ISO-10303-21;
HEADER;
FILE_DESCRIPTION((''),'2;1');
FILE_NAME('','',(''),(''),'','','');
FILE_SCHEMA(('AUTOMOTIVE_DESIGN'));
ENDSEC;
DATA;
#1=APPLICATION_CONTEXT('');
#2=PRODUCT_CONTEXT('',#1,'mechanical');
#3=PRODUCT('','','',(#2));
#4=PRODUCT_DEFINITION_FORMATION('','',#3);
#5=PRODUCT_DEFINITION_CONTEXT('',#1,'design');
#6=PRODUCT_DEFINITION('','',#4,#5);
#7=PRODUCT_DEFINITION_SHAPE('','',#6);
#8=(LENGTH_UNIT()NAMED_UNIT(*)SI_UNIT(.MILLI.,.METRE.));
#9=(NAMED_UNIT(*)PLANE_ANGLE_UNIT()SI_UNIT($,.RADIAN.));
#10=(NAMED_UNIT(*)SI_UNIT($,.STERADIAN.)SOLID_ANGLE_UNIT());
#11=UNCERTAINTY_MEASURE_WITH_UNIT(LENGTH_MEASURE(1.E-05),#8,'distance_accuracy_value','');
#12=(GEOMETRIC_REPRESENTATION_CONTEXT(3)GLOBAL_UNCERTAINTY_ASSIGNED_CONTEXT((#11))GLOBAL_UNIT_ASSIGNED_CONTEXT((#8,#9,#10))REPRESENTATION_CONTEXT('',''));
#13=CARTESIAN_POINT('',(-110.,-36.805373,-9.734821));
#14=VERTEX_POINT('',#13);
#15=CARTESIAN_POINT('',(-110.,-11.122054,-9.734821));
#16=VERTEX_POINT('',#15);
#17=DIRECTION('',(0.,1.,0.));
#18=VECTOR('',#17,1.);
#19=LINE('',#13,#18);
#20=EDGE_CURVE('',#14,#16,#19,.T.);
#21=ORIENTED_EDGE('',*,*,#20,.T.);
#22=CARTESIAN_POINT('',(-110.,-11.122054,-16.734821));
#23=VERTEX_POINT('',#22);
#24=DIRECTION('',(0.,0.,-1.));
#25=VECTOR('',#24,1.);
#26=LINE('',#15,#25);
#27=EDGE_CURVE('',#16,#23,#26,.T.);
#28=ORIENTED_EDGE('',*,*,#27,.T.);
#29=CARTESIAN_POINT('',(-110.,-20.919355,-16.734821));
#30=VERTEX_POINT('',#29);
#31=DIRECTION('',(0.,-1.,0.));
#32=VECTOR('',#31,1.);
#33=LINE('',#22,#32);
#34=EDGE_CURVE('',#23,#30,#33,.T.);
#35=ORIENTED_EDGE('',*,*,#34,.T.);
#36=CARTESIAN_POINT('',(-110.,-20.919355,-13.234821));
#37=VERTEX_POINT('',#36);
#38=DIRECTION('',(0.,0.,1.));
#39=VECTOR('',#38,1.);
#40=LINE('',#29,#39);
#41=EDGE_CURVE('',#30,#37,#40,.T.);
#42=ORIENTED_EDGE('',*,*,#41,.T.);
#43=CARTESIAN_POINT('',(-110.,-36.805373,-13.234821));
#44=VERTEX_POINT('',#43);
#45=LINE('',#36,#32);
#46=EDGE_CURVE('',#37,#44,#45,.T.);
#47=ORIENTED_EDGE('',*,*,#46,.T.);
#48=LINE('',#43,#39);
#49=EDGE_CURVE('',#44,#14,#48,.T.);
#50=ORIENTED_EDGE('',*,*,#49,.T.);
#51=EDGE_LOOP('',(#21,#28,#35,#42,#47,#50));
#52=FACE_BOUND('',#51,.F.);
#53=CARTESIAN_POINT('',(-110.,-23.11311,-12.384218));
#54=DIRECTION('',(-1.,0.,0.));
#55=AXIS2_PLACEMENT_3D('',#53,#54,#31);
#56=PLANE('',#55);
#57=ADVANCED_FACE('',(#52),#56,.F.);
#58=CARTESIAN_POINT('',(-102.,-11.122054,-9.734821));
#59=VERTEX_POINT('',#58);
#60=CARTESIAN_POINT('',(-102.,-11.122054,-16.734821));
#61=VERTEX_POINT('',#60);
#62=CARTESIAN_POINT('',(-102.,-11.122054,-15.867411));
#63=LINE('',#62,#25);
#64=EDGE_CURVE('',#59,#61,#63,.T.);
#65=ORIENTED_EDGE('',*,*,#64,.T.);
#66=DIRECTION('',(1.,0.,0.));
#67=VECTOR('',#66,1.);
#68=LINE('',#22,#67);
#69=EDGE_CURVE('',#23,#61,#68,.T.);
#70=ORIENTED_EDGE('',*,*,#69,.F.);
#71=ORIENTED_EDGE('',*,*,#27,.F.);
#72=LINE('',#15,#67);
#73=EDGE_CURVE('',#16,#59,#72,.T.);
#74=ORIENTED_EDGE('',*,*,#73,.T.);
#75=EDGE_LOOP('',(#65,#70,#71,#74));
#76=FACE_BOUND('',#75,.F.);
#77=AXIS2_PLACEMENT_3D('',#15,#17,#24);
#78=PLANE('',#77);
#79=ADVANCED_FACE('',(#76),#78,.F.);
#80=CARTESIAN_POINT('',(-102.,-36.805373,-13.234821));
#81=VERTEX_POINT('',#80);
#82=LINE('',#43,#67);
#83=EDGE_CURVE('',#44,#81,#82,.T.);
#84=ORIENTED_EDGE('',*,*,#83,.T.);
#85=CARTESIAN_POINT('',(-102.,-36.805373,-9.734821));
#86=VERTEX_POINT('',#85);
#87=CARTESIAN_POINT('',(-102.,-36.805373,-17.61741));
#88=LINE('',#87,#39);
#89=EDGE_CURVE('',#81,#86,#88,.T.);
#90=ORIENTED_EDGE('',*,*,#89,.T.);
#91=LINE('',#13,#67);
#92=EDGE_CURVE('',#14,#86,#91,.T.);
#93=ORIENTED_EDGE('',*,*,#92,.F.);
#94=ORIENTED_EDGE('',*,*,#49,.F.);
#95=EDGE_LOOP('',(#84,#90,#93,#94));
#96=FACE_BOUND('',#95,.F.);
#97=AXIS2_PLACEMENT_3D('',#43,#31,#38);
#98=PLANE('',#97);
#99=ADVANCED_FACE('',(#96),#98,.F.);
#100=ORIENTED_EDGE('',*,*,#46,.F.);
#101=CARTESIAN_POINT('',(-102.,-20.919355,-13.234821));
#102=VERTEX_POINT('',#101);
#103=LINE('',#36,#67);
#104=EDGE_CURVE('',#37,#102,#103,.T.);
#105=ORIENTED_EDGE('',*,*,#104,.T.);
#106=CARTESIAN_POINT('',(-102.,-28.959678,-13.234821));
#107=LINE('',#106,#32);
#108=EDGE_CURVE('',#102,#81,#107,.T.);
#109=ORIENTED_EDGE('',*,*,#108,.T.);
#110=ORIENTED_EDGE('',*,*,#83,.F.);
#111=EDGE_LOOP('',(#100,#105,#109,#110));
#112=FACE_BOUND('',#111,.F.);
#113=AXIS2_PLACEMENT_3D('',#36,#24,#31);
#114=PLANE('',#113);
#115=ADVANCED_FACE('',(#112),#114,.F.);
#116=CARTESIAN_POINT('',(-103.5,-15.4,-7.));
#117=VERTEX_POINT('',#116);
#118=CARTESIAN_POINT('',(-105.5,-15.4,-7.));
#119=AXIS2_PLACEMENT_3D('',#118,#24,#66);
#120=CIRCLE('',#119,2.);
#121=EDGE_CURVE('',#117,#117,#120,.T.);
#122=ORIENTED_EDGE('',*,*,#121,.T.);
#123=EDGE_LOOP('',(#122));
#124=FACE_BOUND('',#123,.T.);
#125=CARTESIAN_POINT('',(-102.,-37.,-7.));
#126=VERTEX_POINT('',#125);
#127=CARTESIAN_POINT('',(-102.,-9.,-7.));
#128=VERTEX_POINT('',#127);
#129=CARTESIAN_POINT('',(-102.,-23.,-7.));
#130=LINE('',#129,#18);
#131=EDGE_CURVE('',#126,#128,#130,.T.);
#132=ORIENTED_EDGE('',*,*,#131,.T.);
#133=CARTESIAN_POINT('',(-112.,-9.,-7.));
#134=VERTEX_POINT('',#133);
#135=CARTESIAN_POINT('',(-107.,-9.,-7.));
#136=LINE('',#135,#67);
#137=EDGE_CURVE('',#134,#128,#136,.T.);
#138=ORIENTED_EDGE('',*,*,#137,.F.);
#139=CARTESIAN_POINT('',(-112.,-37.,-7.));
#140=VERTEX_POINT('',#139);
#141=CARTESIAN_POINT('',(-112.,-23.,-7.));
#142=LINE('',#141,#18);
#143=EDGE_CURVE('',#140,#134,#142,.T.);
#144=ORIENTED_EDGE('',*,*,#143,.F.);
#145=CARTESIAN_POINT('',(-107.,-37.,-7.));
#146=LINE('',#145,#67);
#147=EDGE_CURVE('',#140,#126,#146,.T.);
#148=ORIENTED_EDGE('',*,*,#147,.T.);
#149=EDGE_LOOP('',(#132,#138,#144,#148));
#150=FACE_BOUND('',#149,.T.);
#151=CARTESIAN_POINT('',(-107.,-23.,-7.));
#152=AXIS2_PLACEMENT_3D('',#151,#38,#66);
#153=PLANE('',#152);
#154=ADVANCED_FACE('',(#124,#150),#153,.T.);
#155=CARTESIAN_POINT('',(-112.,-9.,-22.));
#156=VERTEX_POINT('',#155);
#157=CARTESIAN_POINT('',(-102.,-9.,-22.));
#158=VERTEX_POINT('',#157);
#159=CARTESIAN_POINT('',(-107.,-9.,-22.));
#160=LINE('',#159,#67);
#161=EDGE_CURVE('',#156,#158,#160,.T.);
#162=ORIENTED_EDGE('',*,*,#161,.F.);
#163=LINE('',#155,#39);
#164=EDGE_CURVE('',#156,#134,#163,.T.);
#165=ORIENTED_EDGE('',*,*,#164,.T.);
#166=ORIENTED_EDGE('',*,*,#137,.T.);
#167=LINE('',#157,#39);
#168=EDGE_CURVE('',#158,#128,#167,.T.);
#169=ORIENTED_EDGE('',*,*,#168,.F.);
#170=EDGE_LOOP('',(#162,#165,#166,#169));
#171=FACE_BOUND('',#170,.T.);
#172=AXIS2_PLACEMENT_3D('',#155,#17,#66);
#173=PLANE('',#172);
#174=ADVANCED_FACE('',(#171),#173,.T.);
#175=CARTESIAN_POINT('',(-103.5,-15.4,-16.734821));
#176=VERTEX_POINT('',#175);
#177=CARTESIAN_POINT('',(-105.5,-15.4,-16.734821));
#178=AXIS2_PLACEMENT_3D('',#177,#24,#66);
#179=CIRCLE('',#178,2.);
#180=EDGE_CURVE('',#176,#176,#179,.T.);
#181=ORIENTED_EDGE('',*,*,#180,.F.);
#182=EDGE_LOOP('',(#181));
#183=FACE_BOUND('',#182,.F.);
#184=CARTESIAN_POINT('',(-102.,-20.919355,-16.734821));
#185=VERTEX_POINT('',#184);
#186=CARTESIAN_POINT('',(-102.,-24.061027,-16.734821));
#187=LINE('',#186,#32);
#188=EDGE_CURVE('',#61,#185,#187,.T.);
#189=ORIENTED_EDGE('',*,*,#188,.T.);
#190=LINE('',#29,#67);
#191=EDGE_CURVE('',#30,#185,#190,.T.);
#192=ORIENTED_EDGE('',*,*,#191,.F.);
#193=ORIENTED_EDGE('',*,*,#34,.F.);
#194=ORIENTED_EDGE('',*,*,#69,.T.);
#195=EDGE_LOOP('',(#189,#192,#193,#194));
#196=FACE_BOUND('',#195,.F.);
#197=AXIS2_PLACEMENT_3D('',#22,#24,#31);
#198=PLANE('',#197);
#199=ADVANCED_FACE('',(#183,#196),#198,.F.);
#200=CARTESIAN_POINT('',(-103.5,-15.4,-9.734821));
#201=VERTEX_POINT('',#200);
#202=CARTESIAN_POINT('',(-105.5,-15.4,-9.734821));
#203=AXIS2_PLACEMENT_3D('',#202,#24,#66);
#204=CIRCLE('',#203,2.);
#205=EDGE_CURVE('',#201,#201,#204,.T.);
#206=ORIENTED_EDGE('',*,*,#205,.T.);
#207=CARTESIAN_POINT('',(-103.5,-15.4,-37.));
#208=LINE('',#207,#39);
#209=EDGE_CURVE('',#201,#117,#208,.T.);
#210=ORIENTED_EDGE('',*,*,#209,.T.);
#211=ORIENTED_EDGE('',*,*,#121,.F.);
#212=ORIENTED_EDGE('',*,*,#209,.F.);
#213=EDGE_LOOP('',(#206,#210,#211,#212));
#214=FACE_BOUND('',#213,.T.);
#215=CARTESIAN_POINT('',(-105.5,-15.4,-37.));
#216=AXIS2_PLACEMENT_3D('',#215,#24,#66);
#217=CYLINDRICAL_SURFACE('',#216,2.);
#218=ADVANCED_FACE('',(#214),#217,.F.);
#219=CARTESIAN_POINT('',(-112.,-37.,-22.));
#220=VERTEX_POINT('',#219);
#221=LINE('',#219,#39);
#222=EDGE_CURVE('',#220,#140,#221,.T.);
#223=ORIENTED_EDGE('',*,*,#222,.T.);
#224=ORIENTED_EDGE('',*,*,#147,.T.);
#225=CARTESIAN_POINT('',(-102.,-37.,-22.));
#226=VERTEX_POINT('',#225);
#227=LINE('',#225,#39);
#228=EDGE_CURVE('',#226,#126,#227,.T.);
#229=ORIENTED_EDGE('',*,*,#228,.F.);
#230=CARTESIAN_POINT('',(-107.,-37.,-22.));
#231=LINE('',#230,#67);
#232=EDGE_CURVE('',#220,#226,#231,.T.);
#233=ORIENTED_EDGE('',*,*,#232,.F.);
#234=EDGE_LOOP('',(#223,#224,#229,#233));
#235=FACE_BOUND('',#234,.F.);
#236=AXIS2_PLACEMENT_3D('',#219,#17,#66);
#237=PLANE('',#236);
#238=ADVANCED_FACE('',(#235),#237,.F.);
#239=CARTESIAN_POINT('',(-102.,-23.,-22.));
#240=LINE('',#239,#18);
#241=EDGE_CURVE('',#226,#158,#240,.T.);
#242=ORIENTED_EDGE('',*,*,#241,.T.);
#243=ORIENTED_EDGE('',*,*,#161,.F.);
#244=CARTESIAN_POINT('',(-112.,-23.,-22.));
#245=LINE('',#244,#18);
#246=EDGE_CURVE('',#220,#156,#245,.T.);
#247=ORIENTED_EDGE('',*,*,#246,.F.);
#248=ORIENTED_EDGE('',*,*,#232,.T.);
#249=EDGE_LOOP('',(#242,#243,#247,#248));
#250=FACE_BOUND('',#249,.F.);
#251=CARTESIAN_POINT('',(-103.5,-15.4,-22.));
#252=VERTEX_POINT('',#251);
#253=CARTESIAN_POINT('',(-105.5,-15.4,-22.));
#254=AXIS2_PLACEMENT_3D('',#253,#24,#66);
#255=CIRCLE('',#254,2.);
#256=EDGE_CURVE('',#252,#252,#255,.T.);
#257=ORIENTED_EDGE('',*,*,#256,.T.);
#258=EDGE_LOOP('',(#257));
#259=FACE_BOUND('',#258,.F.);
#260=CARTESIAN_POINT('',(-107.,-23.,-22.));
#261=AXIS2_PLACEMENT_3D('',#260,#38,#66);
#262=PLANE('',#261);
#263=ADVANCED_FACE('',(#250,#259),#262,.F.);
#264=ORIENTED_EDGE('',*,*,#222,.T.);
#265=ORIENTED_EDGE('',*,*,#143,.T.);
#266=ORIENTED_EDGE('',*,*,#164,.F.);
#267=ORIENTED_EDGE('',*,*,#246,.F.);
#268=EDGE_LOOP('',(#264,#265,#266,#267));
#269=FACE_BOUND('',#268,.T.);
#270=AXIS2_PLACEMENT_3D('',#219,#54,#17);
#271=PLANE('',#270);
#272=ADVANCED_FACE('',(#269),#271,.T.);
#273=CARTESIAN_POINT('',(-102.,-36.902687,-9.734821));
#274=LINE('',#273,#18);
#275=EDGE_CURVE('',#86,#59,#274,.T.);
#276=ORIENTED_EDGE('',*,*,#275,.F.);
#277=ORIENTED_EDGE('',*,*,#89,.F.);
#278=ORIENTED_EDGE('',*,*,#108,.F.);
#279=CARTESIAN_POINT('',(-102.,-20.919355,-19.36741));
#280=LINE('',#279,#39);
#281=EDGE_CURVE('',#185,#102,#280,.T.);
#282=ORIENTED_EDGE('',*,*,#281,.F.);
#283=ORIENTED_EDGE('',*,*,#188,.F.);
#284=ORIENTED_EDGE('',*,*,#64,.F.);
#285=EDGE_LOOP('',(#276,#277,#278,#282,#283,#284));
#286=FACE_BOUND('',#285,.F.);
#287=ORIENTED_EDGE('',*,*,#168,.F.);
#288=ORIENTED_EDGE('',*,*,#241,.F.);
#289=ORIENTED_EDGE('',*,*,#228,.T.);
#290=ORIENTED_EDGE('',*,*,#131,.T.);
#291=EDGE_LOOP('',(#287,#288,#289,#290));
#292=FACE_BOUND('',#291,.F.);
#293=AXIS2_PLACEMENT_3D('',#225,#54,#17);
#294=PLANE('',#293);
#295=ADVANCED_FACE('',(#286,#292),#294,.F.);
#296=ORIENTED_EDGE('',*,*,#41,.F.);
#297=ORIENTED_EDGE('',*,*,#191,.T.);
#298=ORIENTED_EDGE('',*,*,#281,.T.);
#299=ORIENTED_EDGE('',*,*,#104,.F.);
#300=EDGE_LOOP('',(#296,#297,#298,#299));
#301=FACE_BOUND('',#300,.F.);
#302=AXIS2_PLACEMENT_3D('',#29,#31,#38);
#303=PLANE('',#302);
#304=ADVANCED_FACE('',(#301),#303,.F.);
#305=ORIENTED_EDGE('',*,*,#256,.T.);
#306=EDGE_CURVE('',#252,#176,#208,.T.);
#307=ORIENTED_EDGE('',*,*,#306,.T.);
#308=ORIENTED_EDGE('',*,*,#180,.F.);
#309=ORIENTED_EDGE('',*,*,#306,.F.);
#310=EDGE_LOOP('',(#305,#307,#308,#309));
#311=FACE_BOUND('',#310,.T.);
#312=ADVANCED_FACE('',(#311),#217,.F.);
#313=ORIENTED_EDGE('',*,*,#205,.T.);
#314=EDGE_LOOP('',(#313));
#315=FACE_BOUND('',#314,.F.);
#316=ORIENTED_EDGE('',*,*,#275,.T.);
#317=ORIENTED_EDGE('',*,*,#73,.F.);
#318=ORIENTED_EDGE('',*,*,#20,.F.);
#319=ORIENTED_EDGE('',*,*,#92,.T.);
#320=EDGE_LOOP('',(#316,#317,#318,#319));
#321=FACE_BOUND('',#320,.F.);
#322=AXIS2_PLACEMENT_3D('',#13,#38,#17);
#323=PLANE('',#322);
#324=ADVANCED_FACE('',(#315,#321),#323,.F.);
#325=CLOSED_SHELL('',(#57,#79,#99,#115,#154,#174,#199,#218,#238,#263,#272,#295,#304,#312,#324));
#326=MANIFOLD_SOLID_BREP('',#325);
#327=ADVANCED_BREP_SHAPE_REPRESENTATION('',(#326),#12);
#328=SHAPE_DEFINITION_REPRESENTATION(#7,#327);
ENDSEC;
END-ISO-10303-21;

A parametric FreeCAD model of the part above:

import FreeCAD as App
import Part
import Sketcher

doc = App.newDocument("Part")
body = doc.addObject("PartDesign::Body", "Body")

sketch1 = body.newObject("Sketcher::SketchObject", "Sketch")
sketch1.AttachmentSupport = (doc.getObject("XY_Plane"), [""])
sketch1.MapMode = "FlatFace"
sketch1.AttachmentOffset = App.Placement(App.Vector(0, 0, -37), App.Rotation())
sketch1.addGeometry(Part.Circle(App.Vector(-105.5, -15.4, 0), App.Vector(0, 0, 1), 2), False)
sketch1.addConstraint(Sketcher.Constraint("Diameter", 0, 4.0))
sketch1.addConstraint(Sketcher.Constraint("DistanceX", 0, 3, -1, 1, 105.5))
sketch1.addConstraint(Sketcher.Constraint("DistanceY", 0, 3, -1, 1, 15.4))
pad1 = body.newObject("PartDesign::Pad", "Pad")
pad1.Profile = sketch1
pad1.Length = 50
body2 = doc.addObject("PartDesign::Body", "Body001")

sketch2 = body2.newObject("Sketcher::SketchObject", "Sketch001")
sketch2.AttachmentSupport = (doc.getObject("YZ_Plane001"), [""])
sketch2.MapMode = "FlatFace"
sketch2.addGeometry(Part.LineSegment(App.Vector(-11.1, -9.7, 0), App.Vector(-36.8, -9.7, 0)), False)
sketch2.addGeometry(Part.LineSegment(App.Vector(-36.8, -9.7, 0), App.Vector(-36.8, -13.2, 0)), False)
sketch2.addGeometry(Part.LineSegment(App.Vector(-36.8, -13.2, 0), App.Vector(-20.9, -13.2, 0)), False)
sketch2.addGeometry(Part.LineSegment(App.Vector(-20.9, -13.2, 0), App.Vector(-20.9, -16.7, 0)), False)
sketch2.addGeometry(Part.LineSegment(App.Vector(-20.9, -16.7, 0), App.Vector(-11.1, -16.7, 0)), False)
sketch2.addGeometry(Part.LineSegment(App.Vector(-11.1, -16.7, 0), App.Vector(-11.1, -9.7, 0)), False)
sketch2.addConstraint(Sketcher.Constraint("Coincident", 0, 2, 1, 1))
sketch2.addConstraint(Sketcher.Constraint("Coincident", 1, 2, 2, 1))
sketch2.addConstraint(Sketcher.Constraint("Coincident", 2, 2, 3, 1))
sketch2.addConstraint(Sketcher.Constraint("Coincident", 3, 2, 4, 1))
sketch2.addConstraint(Sketcher.Constraint("Coincident", 4, 2, 5, 1))
sketch2.addConstraint(Sketcher.Constraint("Coincident", 5, 2, 0, 1))
sketch2.addConstraint(Sketcher.Constraint("Horizontal", 0))
sketch2.addConstraint(Sketcher.Constraint("Vertical", 1))
sketch2.addConstraint(Sketcher.Constraint("Horizontal", 2))
sketch2.addConstraint(Sketcher.Constraint("Vertical", 3))
sketch2.addConstraint(Sketcher.Constraint("Horizontal", 4))
sketch2.addConstraint(Sketcher.Constraint("Vertical", 5))
sketch2.addConstraint(Sketcher.Constraint("Equal", 1, 3))
sketch2.addConstraint(Sketcher.Constraint("DistanceY", 5, 1, 5, 2, 7.0))
sketch2.addConstraint(Sketcher.Constraint("DistanceX", 4, 1, 4, 2, 9.797301))
sketch2.addConstraint(Sketcher.Constraint("DistanceX", 0, 2, 0, 1, 25.683319))
sketch2.addConstraint(Sketcher.Constraint("DistanceY", 0, 2, -1, 1, 9.734821))
sketch2.addConstraint(Sketcher.Constraint("DistanceX", 0, 2, -1, 1, 36.805373))
pad2 = body2.newObject("PartDesign::Pad", "Pad001")
pad2.Profile = sketch2
pad2.Length = 30
body3 = doc.addObject("PartDesign::Body", "Body002")
doc.recompute()

body2.Placement = App.Placement(App.Vector(-110, 0, 0), App.Rotation(App.Vector(0, 0, 1), 0))
boolean = body3.newObject("PartDesign::Boolean", "Boolean")
boolean.Type = "Fuse"
boolean.addObjects([body2])
doc.recompute()

boolean2 = body3.newObject("PartDesign::Boolean", "Boolean001")
boolean2.Type = "Fuse"
boolean2.addObjects([body])
body4 = doc.addObject("PartDesign::Body", "Body003")

sketch3 = body4.newObject("Sketcher::SketchObject", "Sketch002")
sketch3.AttachmentSupport = (doc.getObject("XY_Plane003"), [""])
sketch3.MapMode = "FlatFace"
sketch3.AttachmentOffset = App.Placement(App.Vector(0, 0, -22), App.Rotation())
sketch3.addGeometry(Part.LineSegment(App.Vector(-112, -9, 0), App.Vector(-112, -37, 0)), False)
sketch3.addGeometry(Part.LineSegment(App.Vector(-112, -37, 0), App.Vector(-102, -37, 0)), False)
sketch3.addGeometry(Part.LineSegment(App.Vector(-102, -37, 0), App.Vector(-102, -9, 0)), False)
sketch3.addGeometry(Part.LineSegment(App.Vector(-102, -9, 0), App.Vector(-112, -9, 0)), False)
sketch3.addConstraint(Sketcher.Constraint("Coincident", 0, 2, 1, 1))
sketch3.addConstraint(Sketcher.Constraint("Coincident", 1, 2, 2, 1))
sketch3.addConstraint(Sketcher.Constraint("Coincident", 2, 2, 3, 1))
sketch3.addConstraint(Sketcher.Constraint("Coincident", 3, 2, 0, 1))
sketch3.addConstraint(Sketcher.Constraint("Vertical", 0))
sketch3.addConstraint(Sketcher.Constraint("Horizontal", 1))
sketch3.addConstraint(Sketcher.Constraint("Vertical", 2))
sketch3.addConstraint(Sketcher.Constraint("Horizontal", 3))
sketch3.addConstraint(Sketcher.Constraint("DistanceX", 1, 1, 1, 2, 10.0))
sketch3.addConstraint(Sketcher.Constraint("DistanceY", 0, 2, 0, 1, 28.0))
sketch3.addConstraint(Sketcher.Constraint("DistanceX", 0, 2, -1, 1, 112.0))
sketch3.addConstraint(Sketcher.Constraint("DistanceY", 0, 2, -1, 1, 37.0))
pad3 = body4.newObject("PartDesign::Pad", "Pad002")
pad3.Profile = sketch3
pad3.Length = 15
doc.recompute()

boolean3 = body4.newObject("PartDesign::Boolean", "Boolean002")
boolean3.Type = "Cut"
boolean3.addObjects([body3])

doc.recompute()
